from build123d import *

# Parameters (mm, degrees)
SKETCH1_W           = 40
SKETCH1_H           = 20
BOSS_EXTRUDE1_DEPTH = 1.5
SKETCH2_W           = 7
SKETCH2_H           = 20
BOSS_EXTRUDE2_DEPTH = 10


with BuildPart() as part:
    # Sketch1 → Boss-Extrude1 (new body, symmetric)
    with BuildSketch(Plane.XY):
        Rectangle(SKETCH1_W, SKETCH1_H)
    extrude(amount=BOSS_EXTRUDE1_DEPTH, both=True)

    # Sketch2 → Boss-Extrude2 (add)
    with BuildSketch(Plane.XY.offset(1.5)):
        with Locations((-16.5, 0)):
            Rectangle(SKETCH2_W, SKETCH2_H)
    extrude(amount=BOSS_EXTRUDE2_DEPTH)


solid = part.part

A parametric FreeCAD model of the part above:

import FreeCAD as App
import Part
import Sketcher
from FreeCAD import Vector


def add_polygon(sketch, points):
    """Adds a closed chain of lines whose ends are joined by coincident constraints."""
    first, n = sketch.GeometryCount, len(points)
    for a, b in zip(points, points[1:] + points[:1]):
        sketch.addGeometry(Part.LineSegment(App.Vector(*a, 0), App.Vector(*b, 0)), False)
    for i in range(n):
        sketch.addConstraint(Sketcher.Constraint("Coincident", first + i, 2, first + (i + 1) % n, 1))

doc = App.newDocument("Part")
body = doc.addObject("PartDesign::Body", "Body")

sketch1 = body.newObject("Sketcher::SketchObject", "Sketch")
sketch1.AttachmentSupport = (doc.getObject("XY_Plane"), [""])
sketch1.MapMode = "FlatFace"
add_polygon(sketch1, [(-20, 10), (-20, -10), (20, -10), (20, 10)])
sketch1.addConstraint([
    Sketcher.Constraint("Vertical", 0),
    Sketcher.Constraint("Horizontal", 1),
    Sketcher.Constraint("Vertical", 2),
    Sketcher.Constraint("Horizontal", 3),
    Sketcher.Constraint("Symmetric", 0, 2, 2, 2, -1, 1),
    Sketcher.Constraint("DistanceX", 1, 1, 1, 2, 40.0),
    Sketcher.Constraint("DistanceY", 0, 2, 0, 1, 20.0),
])
pad1 = body.newObject("PartDesign::Pad", "Pad")
pad1.Profile = sketch1
pad1.Length = 3
pad1.Midplane = True

sketch2 = body.newObject("Sketcher::SketchObject", "Sketch001")
sketch2.AttachmentSupport = (doc.getObject("XY_Plane"), [""])
sketch2.MapMode = "FlatFace"
sketch2.AttachmentOffset = App.Placement(Vector(0, 0, 1.5), App.Rotation())
add_polygon(sketch2, [(-20, 10), (-20, -10), (-13, -10), (-13, 10)])
sketch2.addConstraint([
    Sketcher.Constraint("Vertical", 0),
    Sketcher.Constraint("Horizontal", 1),
    Sketcher.Constraint("Vertical", 2),
    Sketcher.Constraint("Horizontal", 3),
    Sketcher.Constraint("DistanceX", 1, 1, 1, 2, 7.0),
    Sketcher.Constraint("DistanceY", 0, 2, 0, 1, 20.0),
    Sketcher.Constraint("DistanceX", 0, 2, -1, 1, 20.0),
    Sketcher.Constraint("DistanceY", 0, 2, -1, 1, 10.0),
])
pad2 = body.newObject("PartDesign::Pad", "Pad001")
pad2.Profile = sketch2
pad2.Length = 10

doc.recompute()
